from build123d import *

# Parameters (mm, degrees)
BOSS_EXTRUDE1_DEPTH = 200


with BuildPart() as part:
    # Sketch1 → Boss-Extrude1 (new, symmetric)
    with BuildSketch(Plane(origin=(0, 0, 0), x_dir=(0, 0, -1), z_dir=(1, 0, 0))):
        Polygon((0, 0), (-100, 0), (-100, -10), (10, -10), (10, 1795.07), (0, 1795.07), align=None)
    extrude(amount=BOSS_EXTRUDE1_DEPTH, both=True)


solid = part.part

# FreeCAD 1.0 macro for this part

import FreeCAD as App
import Part
import Sketcher

V = App.Vector


def add_polygon(sketch, points):
    """Adds a closed chain of lines whose ends are joined by coincident constraints."""
    first, n = sketch.GeometryCount, len(points)
    for a, b in zip(points, points[1:] + points[:1]):
        sketch.addGeometry(Part.LineSegment(App.Vector(*a, 0), App.Vector(*b, 0)), False)
    for i in range(n):
        sketch.addConstraint(Sketcher.Constraint("Coincident", first + i, 2, first + (i + 1) % n, 1))

doc = App.newDocument("Part")
body = doc.addObject("PartDesign::Body", "Body")

# Sketch on YZ plane
sketch1 = body.newObject("Sketcher::SketchObject", "Sketch")
sketch1.AttachmentSupport = (doc.getObject("YZ_Plane"), [""])
sketch1.MapMode = "FlatFace"
add_polygon(sketch1, [(0, 0), (0, 100), (-10, 100), (-10, -10), (1795.07, -10), (1795.07, 0)])  # lines 0-5
sketch1.addConstraint([
    Sketcher.Constraint("Vertical", 0),
    Sketcher.Constraint("Horizontal", 1),
    Sketcher.Constraint("Vertical", 2),
    Sketcher.Constraint("Horizontal", 3),
    Sketcher.Constraint("Vertical", 4),
    Sketcher.Constraint("Horizontal", 5),
    Sketcher.Constraint("Coincident", 5, 2, -1, 1),
    Sketcher.Constraint("Equal", 1, 4),
    Sketcher.Constraint("DistanceX", 1, 2, 1, 1, 10.0),
    Sketcher.Constraint("DistanceY", 0, 1, 0, 2, 100.0),
    Sketcher.Constraint("DistanceX", 3, 1, 3, 2, 1805.07),
])
pad1 = body.newObject("PartDesign::Pad", "Pad")
pad1.Profile = sketch1
pad1.Length = 400
pad1.Midplane = True

doc.recompute()
